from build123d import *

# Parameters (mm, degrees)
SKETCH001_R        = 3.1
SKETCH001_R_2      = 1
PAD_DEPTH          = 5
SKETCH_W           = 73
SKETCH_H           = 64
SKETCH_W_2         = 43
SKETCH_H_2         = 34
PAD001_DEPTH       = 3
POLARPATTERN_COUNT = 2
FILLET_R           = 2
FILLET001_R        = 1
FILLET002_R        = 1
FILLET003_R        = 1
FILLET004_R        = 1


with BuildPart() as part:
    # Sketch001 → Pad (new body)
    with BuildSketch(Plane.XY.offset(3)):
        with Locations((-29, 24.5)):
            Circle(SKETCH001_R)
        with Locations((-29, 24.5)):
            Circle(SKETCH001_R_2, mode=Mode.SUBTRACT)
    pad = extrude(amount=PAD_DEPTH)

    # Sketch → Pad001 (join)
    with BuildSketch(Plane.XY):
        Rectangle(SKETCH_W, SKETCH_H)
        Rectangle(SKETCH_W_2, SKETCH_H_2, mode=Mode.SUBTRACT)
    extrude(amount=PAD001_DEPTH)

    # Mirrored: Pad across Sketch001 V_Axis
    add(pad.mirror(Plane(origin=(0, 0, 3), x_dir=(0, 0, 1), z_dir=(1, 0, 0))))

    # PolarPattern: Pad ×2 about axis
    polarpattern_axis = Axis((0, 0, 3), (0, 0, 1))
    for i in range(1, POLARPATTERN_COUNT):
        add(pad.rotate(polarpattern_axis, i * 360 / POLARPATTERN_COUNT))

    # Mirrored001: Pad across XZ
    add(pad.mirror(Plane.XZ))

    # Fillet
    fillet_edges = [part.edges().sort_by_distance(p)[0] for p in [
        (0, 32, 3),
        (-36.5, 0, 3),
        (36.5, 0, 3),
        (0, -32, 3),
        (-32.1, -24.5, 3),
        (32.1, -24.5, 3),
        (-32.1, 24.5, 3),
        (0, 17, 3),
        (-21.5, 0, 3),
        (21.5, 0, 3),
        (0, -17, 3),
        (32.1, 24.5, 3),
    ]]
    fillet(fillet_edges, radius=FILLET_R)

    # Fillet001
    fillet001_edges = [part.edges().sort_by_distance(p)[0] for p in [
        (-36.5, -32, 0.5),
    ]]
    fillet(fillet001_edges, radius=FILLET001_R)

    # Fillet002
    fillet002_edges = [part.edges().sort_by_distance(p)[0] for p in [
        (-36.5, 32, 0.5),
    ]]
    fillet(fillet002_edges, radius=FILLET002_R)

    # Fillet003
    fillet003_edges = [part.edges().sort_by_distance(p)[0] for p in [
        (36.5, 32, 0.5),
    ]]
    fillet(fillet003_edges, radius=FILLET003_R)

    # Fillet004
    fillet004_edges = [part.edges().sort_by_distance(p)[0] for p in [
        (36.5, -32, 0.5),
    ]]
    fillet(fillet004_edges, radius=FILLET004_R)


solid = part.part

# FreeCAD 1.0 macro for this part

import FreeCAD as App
import Part
import Sketcher

V = App.Vector
Q = App.Units.Quantity


def edges_at(feature, points):
    """Names of the edges that pass closest to the given points."""
    edges = feature.Shape.Edges
    near = lambda p: min(range(len(edges)), key=lambda i: edges[i].distToShape(Part.Vertex(*p))[0])
    return sorted({f"Edge{near(p) + 1}" for p in points})


def add_polygon(sketch, points):
    """Adds a closed chain of lines whose ends are joined by coincident constraints."""
    first, n = sketch.GeometryCount, len(points)
    for a, b in zip(points, points[1:] + points[:1]):
        sketch.addGeometry(Part.LineSegment(App.Vector(*a, 0), App.Vector(*b, 0)), False)
    for i in range(n):
        sketch.addConstraint(Sketcher.Constraint("Coincident", first + i, 2, first + (i + 1) % n, 1))

doc = App.newDocument("Part")
body = doc.addObject("PartDesign::Body", "Body")

# Sketch on XY plane
sketch1 = body.newObject("Sketcher::SketchObject", "Sketch")
sketch1.AttachmentSupport = (doc.getObject("XY_Plane"), [""])
sketch1.MapMode = "FlatFace"
sketch1.AttachmentOffset = App.Placement(V(0, 0, 3), App.Rotation())
sketch1.addGeometry([
    Part.Circle(V(-29, 24.5, 0), V(0, 0, 1), 3.1),
    Part.Circle(V(-29, 24.5, 0), V(0, 0, 1), 1),
], False)
sketch1.addConstraint([
    Sketcher.Constraint("Coincident", 1, 3, 0, 3),
    Sketcher.Constraint("Diameter", 1, Q("2 mm")),
    Sketcher.Constraint("Diameter", 0, Q("6.2 mm")),
    Sketcher.Constraint("DistanceX", 0, 3, -1, 1, Q("29 mm")),
    Sketcher.Constraint("DistanceY", -1, 1, 0, 3, Q("24.5 mm")),
])
pad1 = body.newObject("PartDesign::Pad", "Pad")
pad1.Profile = sketch1
pad1.Length = 5

# Sketch on XY plane
sketch2 = body.newObject("Sketcher::SketchObject", "Sketch001")
sketch2.AttachmentSupport = (doc.getObject("XY_Plane"), [""])
sketch2.MapMode = "FlatFace"
add_polygon(sketch2, [(-36, 32), (-36, -32), (36, -32), (36, 32)])  # lines 0-3
add_polygon(sketch2, [(22, -17), (-22, -17), (-22, 17), (22, 17)])  # lines 4-7
sketch2.addConstraint([
    Sketcher.Constraint("Vertical", 0),
    Sketcher.Constraint("Horizontal", 1),
    Sketcher.Constraint("Vertical", 2),
    Sketcher.Constraint("Horizontal", 3),
    Sketcher.Constraint("Horizontal", 4),
    Sketcher.Constraint("Vertical", 5),
    Sketcher.Constraint("Horizontal", 6),
    Sketcher.Constraint("Vertical", 7),
    Sketcher.Constraint("Symmetric", 0, 2, 2, 2, -1, 1),
    Sketcher.Constraint("Symmetric", 4, 2, 6, 2, -1, 1),
    Sketcher.Constraint("DistanceX", 1, 1, 1, 2, Q("73 mm")),
    Sketcher.Constraint("DistanceX", 4, 2, 4, 1, Q("43 mm")),
    Sketcher.Constraint("DistanceY", 0, 2, 0, 1, Q("64 mm")),
    Sketcher.Constraint("DistanceY", 5, 1, 5, 2, Q("34 mm")),
])
pad2 = body.newObject("PartDesign::Pad", "Pad001")
pad2.Profile = sketch2
pad2.Length = 3
doc.recompute()

mirrored = body.newObject("PartDesign::Mirrored", "Mirrored")
mirrored.Originals = [pad1]
mirrored.MirrorPlane = (doc.getObject("YZ_Plane"), [""])
body.Tip = mirrored
doc.recompute()

polarpattern = body.newObject("PartDesign::PolarPattern", "PolarPattern")
polarpattern.Originals = [pad1]
polarpattern.Axis = (doc.getObject("Z_Axis"), [""])
polarpattern.Angle = 360
polarpattern.Occurrences = 2
body.Tip = polarpattern
doc.recompute()

mirrored2 = body.newObject("PartDesign::Mirrored", "Mirrored001")
mirrored2.Originals = [pad1]
mirrored2.MirrorPlane = (doc.getObject("XZ_Plane"), [""])
body.Tip = mirrored2
doc.recompute()

fillet = body.newObject("PartDesign::Fillet", "Fillet")
fillet.Base = (mirrored2, edges_at(mirrored2, [
    (0, 32, 3),
    (-36.5, 0, 3),
    (36.5, 0, 3),
    (0, -32, 3),
    (-32.1, -24.5, 3),
    (32.1, -24.5, 3),
    (-32.1, 24.5, 3),
    (0, 17, 3),
    (-21.5, 0, 3),
    (21.5, 0, 3),
    (0, -17, 3),
    (32.1, 24.5, 3),
]))
fillet.Radius = 2
doc.recompute()

fillet2 = body.newObject("PartDesign::Fillet", "Fillet001")
fillet2.Base = (fillet, edges_at(fillet, [(-36.5, -32, 0.5)]))
fillet2.Radius = 1
doc.recompute()

fillet3 = body.newObject("PartDesign::Fillet", "Fillet002")
fillet3.Base = (fillet2, edges_at(fillet2, [(-36.5, 32, 0.5)]))
fillet3.Radius = 1
doc.recompute()

fillet4 = body.newObject("PartDesign::Fillet", "Fillet003")
fillet4.Base = (fillet3, edges_at(fillet3, [(36.5, 32, 0.5)]))
fillet4.Radius = 1
doc.recompute()

fillet5 = body.newObject("PartDesign::Fillet", "Fillet004")
fillet5.Base = (fillet4, edges_at(fillet4, [(36.5, -32, 0.5)]))
fillet5.Radius = 1

doc.recompute()
